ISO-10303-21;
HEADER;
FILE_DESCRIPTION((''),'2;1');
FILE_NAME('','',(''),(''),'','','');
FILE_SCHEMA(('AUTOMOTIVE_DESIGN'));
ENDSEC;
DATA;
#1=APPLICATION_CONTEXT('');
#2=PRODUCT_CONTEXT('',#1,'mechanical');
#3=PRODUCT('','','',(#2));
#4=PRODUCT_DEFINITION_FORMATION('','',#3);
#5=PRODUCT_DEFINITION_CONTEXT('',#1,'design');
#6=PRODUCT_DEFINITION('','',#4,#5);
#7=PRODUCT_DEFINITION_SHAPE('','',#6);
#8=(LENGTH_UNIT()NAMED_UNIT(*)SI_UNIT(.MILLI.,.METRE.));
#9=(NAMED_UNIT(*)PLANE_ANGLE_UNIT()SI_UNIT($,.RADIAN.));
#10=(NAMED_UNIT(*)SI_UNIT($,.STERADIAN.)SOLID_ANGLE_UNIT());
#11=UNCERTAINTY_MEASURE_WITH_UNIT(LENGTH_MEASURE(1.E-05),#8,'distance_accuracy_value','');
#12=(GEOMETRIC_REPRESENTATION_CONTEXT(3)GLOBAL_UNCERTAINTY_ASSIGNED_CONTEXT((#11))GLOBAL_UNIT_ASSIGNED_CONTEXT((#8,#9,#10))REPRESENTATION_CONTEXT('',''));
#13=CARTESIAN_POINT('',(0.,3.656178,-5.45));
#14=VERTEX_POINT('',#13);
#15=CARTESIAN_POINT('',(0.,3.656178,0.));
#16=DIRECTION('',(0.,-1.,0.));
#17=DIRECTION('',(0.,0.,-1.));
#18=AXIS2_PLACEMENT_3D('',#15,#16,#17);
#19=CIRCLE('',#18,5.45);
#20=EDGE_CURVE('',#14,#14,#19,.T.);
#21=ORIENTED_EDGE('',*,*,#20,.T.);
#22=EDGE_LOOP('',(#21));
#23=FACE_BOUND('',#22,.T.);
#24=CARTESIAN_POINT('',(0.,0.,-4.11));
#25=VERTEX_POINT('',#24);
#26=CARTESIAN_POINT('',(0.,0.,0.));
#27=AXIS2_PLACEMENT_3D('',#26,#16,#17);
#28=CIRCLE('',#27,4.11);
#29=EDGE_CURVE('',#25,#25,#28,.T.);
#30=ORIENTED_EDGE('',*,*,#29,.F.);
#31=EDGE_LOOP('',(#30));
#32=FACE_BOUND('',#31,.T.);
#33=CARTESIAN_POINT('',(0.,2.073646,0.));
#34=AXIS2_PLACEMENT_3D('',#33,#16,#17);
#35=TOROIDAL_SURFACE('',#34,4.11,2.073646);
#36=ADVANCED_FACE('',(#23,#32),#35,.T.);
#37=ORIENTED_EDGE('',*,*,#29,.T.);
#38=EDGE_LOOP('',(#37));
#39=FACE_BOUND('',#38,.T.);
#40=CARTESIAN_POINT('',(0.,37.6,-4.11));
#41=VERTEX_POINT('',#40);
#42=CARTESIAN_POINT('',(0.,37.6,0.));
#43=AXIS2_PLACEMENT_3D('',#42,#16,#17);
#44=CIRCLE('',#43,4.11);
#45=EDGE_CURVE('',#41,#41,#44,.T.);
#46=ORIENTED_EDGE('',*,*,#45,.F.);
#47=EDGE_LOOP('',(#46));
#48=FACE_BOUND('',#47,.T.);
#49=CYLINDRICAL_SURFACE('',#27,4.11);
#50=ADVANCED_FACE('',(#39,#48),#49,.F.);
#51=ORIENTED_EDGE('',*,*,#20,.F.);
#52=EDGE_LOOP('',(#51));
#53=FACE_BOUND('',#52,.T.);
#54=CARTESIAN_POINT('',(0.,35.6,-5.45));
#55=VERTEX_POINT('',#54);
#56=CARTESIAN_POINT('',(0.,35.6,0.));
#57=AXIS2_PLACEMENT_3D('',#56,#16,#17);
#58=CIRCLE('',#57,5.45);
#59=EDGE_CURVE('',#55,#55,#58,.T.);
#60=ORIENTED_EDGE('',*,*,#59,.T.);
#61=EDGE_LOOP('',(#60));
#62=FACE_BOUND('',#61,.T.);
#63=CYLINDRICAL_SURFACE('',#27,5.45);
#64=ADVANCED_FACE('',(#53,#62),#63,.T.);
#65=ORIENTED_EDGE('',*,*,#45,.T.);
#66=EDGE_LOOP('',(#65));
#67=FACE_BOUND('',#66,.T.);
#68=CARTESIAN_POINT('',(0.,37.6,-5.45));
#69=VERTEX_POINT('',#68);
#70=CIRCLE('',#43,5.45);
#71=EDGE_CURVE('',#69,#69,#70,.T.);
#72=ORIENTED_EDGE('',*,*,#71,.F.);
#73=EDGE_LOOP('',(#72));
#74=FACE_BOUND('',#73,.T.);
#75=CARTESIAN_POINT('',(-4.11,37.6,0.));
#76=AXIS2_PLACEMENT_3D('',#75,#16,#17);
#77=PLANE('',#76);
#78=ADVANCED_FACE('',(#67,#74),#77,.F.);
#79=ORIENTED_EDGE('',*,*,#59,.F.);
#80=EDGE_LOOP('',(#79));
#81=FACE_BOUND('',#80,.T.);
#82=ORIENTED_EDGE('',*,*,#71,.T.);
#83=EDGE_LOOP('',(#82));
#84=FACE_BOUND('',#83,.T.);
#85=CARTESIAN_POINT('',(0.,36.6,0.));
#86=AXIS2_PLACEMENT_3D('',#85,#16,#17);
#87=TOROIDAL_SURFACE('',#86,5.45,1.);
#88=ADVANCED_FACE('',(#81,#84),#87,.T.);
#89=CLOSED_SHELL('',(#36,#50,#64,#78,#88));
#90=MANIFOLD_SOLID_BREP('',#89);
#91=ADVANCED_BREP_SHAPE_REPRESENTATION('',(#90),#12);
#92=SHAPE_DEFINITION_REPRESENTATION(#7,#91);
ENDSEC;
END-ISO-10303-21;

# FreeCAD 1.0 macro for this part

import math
import FreeCAD as App
import Part
import Sketcher
from FreeCAD import Vector
Q = App.Units.Quantity

doc = App.newDocument("Part")
body = doc.addObject("PartDesign::Body", "Body")

# Sketch on XY plane
sketch1 = doc.addObject("Sketcher::SketchObject", "Sketch")
body.addObject(sketch1)
sketch1.AttachmentSupport = (doc.XY_Plane, [""])
sketch1.MapMode = "FlatFace"
sketch1.addGeometry([
    Part.LineSegment(Vector(-4.1, 0, 0), Vector(-4.1, 37.6, 0)),  # 0
    Part.LineSegment(Vector(-4.1, 37.6, 0), Vector(-5.5, 37.6, 0)),  # 1
    Part.ArcOfCircle(Part.Circle(Vector(-5.5, 36.6, 0), Vector(0, 0, 1), 1), math.radians(90), math.radians(270)),  # 2
    Part.LineSegment(Vector(-5.5, 35.6, 0), Vector(-5.5, 3.7, 0)),  # 3
    Part.ArcOfCircle(Part.Circle(Vector(-4.1, 2.1, 0), Vector(0, 0, 1), 2.1), math.radians(130), math.radians(270)),  # 4
], False)
sketch1.addConstraint([
    Sketcher.Constraint("Coincident", 0, 2, 1, 1),
    Sketcher.Constraint("Tangent", 1, 2, 2, 1),
    Sketcher.Constraint("Coincident", 2, 2, 3, 1),
    Sketcher.Constraint("Coincident", 3, 2, 4, 1),
    Sketcher.Constraint("Coincident", 4, 2, 0, 1),
    Sketcher.Constraint("Vertical", 0),
    Sketcher.Constraint("Horizontal", 1),
    Sketcher.Constraint("Vertical", 3),
    Sketcher.Constraint("PointOnObject", 4, 2, -1),
    Sketcher.Constraint("Vertical", 4, 3, 0, 2),
    Sketcher.Constraint("Vertical", 1, 2, 2, 2),
    Sketcher.Constraint("Radius", 2, Q("1 mm")),
    Sketcher.Constraint("DistanceY", 0, 1, 0, 2, Q("37.6 mm")),
    Sketcher.Constraint("DistanceX", 1, 2, 1, 1, Q("1.34 mm")),
    Sketcher.Constraint("DistanceX", 2, 3, -1, 1, Q("5.45 mm")),
    Sketcher.Constraint("Radius", 4, Q("2.073646 mm")),
])
revolution = doc.addObject("PartDesign::Revolution", "Revolution")
body.addObject(revolution)
revolution.Profile = sketch1
revolution.ReferenceAxis = (sketch1, ["V_Axis"])
revolution.Angle = 360

doc.recompute()
